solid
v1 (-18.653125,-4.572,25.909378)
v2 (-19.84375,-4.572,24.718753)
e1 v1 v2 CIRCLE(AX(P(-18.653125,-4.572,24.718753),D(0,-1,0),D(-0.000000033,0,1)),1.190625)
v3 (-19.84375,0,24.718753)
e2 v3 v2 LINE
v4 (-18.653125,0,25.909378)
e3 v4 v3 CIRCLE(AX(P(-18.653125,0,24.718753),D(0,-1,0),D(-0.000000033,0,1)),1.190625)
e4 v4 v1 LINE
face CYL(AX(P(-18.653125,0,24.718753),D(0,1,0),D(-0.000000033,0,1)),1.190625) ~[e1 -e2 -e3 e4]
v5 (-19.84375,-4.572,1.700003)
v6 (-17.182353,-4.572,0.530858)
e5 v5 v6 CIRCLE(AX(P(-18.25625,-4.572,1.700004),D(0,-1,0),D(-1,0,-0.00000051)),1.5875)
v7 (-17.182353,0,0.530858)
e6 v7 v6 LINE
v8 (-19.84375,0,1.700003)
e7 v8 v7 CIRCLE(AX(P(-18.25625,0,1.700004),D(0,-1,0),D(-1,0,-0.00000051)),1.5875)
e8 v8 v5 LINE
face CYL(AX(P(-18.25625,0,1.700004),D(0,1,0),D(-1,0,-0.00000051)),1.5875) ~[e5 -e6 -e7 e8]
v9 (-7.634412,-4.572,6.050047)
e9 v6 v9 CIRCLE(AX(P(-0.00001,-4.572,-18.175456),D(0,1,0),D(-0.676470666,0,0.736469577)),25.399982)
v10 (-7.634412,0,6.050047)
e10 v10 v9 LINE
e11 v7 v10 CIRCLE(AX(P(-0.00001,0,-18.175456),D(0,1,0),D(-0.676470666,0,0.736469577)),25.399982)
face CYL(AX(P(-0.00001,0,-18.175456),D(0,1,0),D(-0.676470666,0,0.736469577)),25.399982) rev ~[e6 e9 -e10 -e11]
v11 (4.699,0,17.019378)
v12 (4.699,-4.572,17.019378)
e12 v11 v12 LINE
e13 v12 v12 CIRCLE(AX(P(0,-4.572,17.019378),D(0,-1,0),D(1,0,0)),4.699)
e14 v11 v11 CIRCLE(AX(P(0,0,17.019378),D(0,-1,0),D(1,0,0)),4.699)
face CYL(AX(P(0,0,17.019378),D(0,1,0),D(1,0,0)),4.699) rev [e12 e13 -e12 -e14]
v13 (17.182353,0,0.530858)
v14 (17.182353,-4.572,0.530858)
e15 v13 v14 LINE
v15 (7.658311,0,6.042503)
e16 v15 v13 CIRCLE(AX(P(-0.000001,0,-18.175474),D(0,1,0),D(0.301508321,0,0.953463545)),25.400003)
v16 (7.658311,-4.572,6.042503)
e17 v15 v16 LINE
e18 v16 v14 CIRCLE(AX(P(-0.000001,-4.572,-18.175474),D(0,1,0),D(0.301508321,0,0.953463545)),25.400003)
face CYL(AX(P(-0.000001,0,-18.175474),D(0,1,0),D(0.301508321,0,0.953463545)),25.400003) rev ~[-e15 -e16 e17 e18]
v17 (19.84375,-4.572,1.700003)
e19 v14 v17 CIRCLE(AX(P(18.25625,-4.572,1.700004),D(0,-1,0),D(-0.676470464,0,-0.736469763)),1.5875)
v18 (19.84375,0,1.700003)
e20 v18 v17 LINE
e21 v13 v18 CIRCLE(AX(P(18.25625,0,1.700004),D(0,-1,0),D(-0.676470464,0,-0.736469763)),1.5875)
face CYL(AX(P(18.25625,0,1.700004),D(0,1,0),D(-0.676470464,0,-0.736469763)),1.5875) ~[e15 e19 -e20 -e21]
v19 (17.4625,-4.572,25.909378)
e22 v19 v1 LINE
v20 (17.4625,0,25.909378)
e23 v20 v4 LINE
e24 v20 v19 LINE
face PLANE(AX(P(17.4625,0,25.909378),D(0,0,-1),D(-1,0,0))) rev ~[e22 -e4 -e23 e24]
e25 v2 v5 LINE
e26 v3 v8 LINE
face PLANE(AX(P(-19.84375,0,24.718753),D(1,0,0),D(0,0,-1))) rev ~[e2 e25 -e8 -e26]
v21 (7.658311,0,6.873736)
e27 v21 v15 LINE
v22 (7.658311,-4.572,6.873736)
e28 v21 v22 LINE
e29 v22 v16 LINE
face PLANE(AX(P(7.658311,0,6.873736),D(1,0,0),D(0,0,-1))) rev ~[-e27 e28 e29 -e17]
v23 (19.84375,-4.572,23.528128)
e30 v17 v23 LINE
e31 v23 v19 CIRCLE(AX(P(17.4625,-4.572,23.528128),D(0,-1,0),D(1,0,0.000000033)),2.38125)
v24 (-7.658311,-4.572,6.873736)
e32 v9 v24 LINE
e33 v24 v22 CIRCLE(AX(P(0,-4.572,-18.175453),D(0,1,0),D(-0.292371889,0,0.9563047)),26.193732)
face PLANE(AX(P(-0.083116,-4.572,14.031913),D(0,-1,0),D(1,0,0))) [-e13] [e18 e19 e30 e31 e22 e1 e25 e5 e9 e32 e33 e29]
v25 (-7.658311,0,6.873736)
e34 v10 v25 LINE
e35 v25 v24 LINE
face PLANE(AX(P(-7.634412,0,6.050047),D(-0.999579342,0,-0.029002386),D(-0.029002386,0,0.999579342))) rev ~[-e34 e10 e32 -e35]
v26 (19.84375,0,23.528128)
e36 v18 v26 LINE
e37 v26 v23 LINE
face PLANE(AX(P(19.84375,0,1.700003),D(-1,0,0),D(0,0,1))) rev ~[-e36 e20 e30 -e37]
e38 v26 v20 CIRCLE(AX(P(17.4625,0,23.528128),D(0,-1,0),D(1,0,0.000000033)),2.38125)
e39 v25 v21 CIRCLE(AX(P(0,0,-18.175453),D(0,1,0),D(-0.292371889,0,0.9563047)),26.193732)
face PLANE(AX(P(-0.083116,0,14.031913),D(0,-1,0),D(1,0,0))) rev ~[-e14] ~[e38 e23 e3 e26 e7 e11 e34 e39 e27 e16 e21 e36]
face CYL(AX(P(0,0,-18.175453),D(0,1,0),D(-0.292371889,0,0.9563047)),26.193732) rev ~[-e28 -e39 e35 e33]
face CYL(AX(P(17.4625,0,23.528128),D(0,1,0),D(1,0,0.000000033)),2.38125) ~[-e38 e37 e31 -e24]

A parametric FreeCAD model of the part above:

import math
import FreeCAD as App
import Part
import Sketcher
from FreeCAD import Vector
Q = App.Units.Quantity

doc = App.newDocument("Part")
body = doc.addObject("PartDesign::Body", "Body")

# Sketch on XZ plane
sketch1 = body.newObject("Sketcher::SketchObject", "Sketch")
sketch1.AttachmentSupport = (doc.getObject("XZ_Plane"), [""])
sketch1.MapMode = "FlatFace"
sketch1.addGeometry(Part.LineSegment(Vector(17.5, 25.9, 0), Vector(-18.7, 25.9, 0)), False)
sketch1.addGeometry(Part.ArcOfCircle(Part.Circle(Vector(-18.7, 24.7, 0), Vector(0, 0, 1), 1.2), math.radians(90), math.radians(180)), False)
sketch1.addGeometry(Part.LineSegment(Vector(-19.8, 24.7, 0), Vector(-19.8, 1.7, 0)), False)
sketch1.addGeometry(Part.ArcOfCircle(Part.Circle(Vector(-18.3, 1.7, 0), Vector(0, 0, 1), 1.6), math.radians(-180), math.radians(-47)), False)
sketch1.addGeometry(Part.ArcOfCircle(Part.Circle(Vector(0, -18.2, 0), Vector(0, 0, 1), 25.4), math.radians(107), math.radians(133)), False)
sketch1.addGeometry(Part.LineSegment(Vector(-7.6, 6.1, 0), Vector(-7.7, 6.9, 0)), False)
sketch1.addGeometry(Part.ArcOfCircle(Part.Circle(Vector(0, -18.2, 0), Vector(0, 0, 1), 26.2), math.radians(73), math.radians(107)), False)
sketch1.addGeometry(Part.LineSegment(Vector(7.7, 6.9, 0), Vector(7.7, 6, 0)), False)
sketch1.addGeometry(Part.ArcOfCircle(Part.Circle(Vector(0, -18.2, 0), Vector(0, 0, 1), 25.4), math.radians(47), math.radians(72)), False)
sketch1.addGeometry(Part.ArcOfCircle(Part.Circle(Vector(18.3, 1.7, 0), Vector(0, 0, 1), 1.6), math.radians(-133), math.radians(0)), False)
sketch1.addGeometry(Part.LineSegment(Vector(19.8, 1.7, 0), Vector(19.8, 23.5, 0)), False)
sketch1.addGeometry(Part.ArcOfCircle(Part.Circle(Vector(17.5, 23.5, 0), Vector(0, 0, 1), 2.4), math.radians(0), math.radians(90)), False)
sketch1.addGeometry(Part.Circle(Vector(0, 17, 0), Vector(0, 0, 1), 4.7), False)
sketch1.addConstraint(Sketcher.Constraint("Tangent", 0, 2, 1, 1))
sketch1.addConstraint(Sketcher.Constraint("Tangent", 1, 2, 2, 1))
sketch1.addConstraint(Sketcher.Constraint("Tangent", 2, 2, 3, 1))
sketch1.addConstraint(Sketcher.Constraint("Tangent", 3, 2, 4, 2))
sketch1.addConstraint(Sketcher.Constraint("Coincident", 4, 1, 5, 1))
sketch1.addConstraint(Sketcher.Constraint("Coincident", 5, 2, 6, 2))
sketch1.addConstraint(Sketcher.Constraint("Coincident", 6, 1, 7, 1))
sketch1.addConstraint(Sketcher.Constraint("Coincident", 7, 2, 8, 2))
sketch1.addConstraint(Sketcher.Constraint("Tangent", 8, 1, 9, 1))
sketch1.addConstraint(Sketcher.Constraint("Tangent", 9, 2, 10, 1))
sketch1.addConstraint(Sketcher.Constraint("Tangent", 10, 2, 11, 1))
sketch1.addConstraint(Sketcher.Constraint("Tangent", 11, 2, 0, 1))
sketch1.addConstraint(Sketcher.Constraint("Horizontal", 0))
sketch1.addConstraint(Sketcher.Constraint("Vertical", 2))
sketch1.addConstraint(Sketcher.Constraint("Vertical", 7))
sketch1.addConstraint(Sketcher.Constraint("Vertical", 10))
sketch1.addConstraint(Sketcher.Constraint("Equal", 3, 9))
sketch1.addConstraint(Sketcher.Constraint("Symmetric", 3, 3, 9, 3, -2))
sketch1.addConstraint(Sketcher.Constraint("Symmetric", 5, 2, 6, 1, -2))
sketch1.addConstraint(Sketcher.Constraint("PointOnObject", 8, 3, -2))
sketch1.addConstraint(Sketcher.Constraint("PointOnObject", 12, 3, -2))
sketch1.addConstraint(Sketcher.Constraint("Horizontal", 3, 2, 8, 1))
sketch1.addConstraint(Sketcher.Constraint("Radius", 8, Q("1.0000001 in")))
sketch1.addConstraint(Sketcher.Constraint("Diameter", 12, Q("0.37 in")))
sketch1.addConstraint(Sketcher.Constraint("Radius", 1, Q("0.046875 in")))
sketch1.addConstraint(Sketcher.Constraint("Radius", 3, Q("0.0625 in")))
sketch1.addConstraint(Sketcher.Constraint("Radius", 11, Q("0.09375 in")))
sketch1.addConstraint(Sketcher.Constraint("DistanceX", 0, 2, 0, 1, Q("1.421875 in")))
sketch1.addConstraint(Sketcher.Constraint("DistanceY", 2, 2, 2, 1, Q("0.90625 in")))
sketch1.addConstraint(Sketcher.Constraint("DistanceY", 12, 3, 0, 2, Q("0.35 in")))
sketch1.addConstraint(Sketcher.Constraint("DistanceY", -1, 1, 3, 2, Q("0.0208999 in")))
sketch1.addConstraint(Sketcher.Constraint("Radius", 4, 25.399982))
sketch1.addConstraint(Sketcher.Constraint("Radius", 6, 26.193732))
sketch1.addConstraint(Sketcher.Constraint("DistanceX", 5, 2, 4, 1, 0.023899))
sketch1.addConstraint(Sketcher.Constraint("DistanceY", 9, 3, 7, 2, 4.342499))
sketch1.addConstraint(Sketcher.Constraint("DistanceY", 7, 2, 7, 1, 0.831233))
pad1 = body.newObject("PartDesign::Pad", "Pad")
pad1.Profile = sketch1
pad1.Length = Q("0.18 in")

doc.recompute()
